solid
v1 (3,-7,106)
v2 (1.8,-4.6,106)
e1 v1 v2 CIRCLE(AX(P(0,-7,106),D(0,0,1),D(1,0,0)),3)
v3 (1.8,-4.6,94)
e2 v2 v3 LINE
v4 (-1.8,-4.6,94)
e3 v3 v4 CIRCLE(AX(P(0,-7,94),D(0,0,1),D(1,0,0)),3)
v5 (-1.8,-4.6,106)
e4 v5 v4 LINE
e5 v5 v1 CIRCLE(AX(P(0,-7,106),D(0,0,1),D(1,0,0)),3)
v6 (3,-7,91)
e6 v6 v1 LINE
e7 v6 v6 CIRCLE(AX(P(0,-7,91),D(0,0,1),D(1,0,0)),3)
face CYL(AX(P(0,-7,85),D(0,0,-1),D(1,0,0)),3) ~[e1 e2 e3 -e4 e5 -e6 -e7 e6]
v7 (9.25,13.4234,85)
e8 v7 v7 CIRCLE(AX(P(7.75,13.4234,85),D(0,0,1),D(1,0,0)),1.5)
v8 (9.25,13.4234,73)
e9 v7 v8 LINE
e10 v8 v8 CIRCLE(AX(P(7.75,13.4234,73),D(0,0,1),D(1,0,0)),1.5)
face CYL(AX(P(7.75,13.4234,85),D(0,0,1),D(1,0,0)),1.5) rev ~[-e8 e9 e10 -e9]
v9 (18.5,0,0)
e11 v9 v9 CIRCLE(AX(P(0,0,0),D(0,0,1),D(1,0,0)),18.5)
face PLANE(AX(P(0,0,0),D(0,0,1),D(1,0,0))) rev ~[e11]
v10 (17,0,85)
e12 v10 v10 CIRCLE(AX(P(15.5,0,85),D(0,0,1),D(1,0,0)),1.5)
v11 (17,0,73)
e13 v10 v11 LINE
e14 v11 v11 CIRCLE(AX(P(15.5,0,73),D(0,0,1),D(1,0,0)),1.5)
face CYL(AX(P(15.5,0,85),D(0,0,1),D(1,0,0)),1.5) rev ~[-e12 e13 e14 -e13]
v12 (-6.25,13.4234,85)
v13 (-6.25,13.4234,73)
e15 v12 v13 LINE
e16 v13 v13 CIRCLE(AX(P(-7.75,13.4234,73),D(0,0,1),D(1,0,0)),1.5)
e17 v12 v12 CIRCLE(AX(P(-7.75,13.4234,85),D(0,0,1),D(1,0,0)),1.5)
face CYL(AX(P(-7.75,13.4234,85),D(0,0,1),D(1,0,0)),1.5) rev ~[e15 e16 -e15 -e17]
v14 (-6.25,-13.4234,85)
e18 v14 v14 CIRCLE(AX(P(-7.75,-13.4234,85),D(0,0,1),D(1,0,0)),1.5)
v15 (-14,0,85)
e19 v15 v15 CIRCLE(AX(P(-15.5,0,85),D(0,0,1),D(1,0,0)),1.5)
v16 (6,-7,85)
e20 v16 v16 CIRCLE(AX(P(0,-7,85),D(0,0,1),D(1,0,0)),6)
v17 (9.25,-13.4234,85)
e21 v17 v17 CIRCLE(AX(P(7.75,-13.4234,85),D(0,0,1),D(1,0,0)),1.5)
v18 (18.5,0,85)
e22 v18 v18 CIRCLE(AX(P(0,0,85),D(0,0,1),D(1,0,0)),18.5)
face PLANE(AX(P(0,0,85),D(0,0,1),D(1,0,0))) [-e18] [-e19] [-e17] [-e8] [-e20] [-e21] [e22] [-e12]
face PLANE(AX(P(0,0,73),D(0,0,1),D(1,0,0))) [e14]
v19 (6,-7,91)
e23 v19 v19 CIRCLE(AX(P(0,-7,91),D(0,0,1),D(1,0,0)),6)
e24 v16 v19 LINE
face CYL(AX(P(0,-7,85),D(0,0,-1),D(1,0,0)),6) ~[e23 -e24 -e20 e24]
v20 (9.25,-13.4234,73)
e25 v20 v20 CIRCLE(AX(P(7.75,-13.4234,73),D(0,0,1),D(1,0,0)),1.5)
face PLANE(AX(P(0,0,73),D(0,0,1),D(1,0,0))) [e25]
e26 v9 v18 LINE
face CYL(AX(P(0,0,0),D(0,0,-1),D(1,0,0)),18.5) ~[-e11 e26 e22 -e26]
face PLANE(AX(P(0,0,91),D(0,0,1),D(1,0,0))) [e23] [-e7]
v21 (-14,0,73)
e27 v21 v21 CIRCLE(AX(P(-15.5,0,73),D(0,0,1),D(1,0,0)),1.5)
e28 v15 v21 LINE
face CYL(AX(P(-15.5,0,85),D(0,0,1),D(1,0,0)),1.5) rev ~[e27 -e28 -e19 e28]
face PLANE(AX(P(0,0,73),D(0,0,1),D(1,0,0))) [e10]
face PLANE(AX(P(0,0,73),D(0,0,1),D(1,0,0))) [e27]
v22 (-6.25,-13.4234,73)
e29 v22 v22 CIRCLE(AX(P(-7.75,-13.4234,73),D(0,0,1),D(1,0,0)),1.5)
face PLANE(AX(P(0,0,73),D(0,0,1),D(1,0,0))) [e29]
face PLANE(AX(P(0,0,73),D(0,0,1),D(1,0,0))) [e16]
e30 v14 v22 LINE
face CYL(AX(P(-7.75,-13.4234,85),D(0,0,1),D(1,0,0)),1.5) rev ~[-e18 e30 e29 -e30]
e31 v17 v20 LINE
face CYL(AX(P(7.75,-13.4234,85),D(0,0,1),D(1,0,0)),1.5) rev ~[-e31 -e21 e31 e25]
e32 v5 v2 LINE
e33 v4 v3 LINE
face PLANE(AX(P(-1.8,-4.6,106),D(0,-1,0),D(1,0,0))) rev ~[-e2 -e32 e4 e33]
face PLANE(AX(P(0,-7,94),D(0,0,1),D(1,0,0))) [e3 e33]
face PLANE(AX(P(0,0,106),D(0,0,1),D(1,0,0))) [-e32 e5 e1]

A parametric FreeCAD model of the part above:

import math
import FreeCAD as App
import Part
import Sketcher
from FreeCAD import Vector

doc = App.newDocument("Part")
params = doc.addObject("Spreadsheet::Sheet", "Params")
for row, (alias, value) in enumerate([
    ("sketch1_diameter", "37 mm"),
    ("pad1_length", "85 mm"),
    ("sketch2_diameter", "6 mm"),
    ("pad2_length", "21 mm"),
    ("sketch3_diameter", "12 mm"),
    ("sketch3_diameter2", "6 mm"),
    ("pad3_length", "6 mm"),
    ("sketch4_radius", "3 mm"),
    ("pocket1_length", "12 mm"),
    ("sketch5_diameter", "3 mm"),
    ("pocket2_length", "12 mm"),
], start=1):
    params.set(f"A{row}", alias)
    params.set(f"B{row}", "=" + value)
    params.setAlias(f"B{row}", alias)

body = doc.addObject("PartDesign::Body", "Body")

# Sketch on XY plane
sketch1 = doc.addObject("Sketcher::SketchObject", "Sketch")
body.addObject(sketch1)
sketch1.AttachmentSupport = (doc.XY_Plane, [""])
sketch1.MapMode = "FlatFace"
sketch1.addGeometry(Part.Circle(Vector(0, 0, 0), Vector(0, 0, 1), 18), False)
sketch1.addConstraint(Sketcher.Constraint("Coincident", 0, 3, -1, 1))
sketch1.addConstraint(Sketcher.Constraint("Diameter", 0, 37.0))
sketch1.setExpression("Constraints[1]", "Params.sketch1_diameter")
pad1 = doc.addObject("PartDesign::Pad", "Pad")
body.addObject(pad1)
pad1.Profile = sketch1
pad1.setExpression("Length", "Params.pad1_length")

# Sketch on XY plane
sketch2 = doc.addObject("Sketcher::SketchObject", "Sketch001")
body.addObject(sketch2)
sketch2.AttachmentSupport = (doc.XY_Plane, [""])
sketch2.MapMode = "FlatFace"
sketch2.AttachmentOffset = App.Placement(Vector(0, 0, 85), App.Rotation())
sketch2.addGeometry(Part.Circle(Vector(0, -7, 0), Vector(0, 0, 1), 3), False)
sketch2.addConstraint(Sketcher.Constraint("PointOnObject", 0, 3, -2))
sketch2.addConstraint(Sketcher.Constraint("Diameter", 0, 6.0))
sketch2.addConstraint(Sketcher.Constraint("DistanceY", 0, 3, -1, 1, 7.0))
sketch2.setExpression("Constraints[1]", "Params.sketch2_diameter")
pad2 = doc.addObject("PartDesign::Pad", "Pad001")
body.addObject(pad2)
pad2.Profile = sketch2
pad2.setExpression("Length", "Params.pad2_length")

# Sketch on XY plane
sketch3 = doc.addObject("Sketcher::SketchObject", "Sketch002")
body.addObject(sketch3)
sketch3.AttachmentSupport = (doc.XY_Plane, [""])
sketch3.MapMode = "FlatFace"
sketch3.AttachmentOffset = App.Placement(Vector(0, 0, 85), App.Rotation())
sketch3.addGeometry(Part.Circle(Vector(0, -7, 0), Vector(0, 0, 1), 6), False)
sketch3.addGeometry(Part.Circle(Vector(0, -7, 0), Vector(0, 0, 1), 3), False)
sketch3.addConstraint(Sketcher.Constraint("Coincident", 1, 3, 0, 3))
sketch3.addConstraint(Sketcher.Constraint("PointOnObject", 0, 3, -2))
sketch3.addConstraint(Sketcher.Constraint("Diameter", 0, 12.0))
sketch3.addConstraint(Sketcher.Constraint("Diameter", 1, 6.0))
sketch3.addConstraint(Sketcher.Constraint("DistanceY", 0, 3, -1, 1, 7.0))
sketch3.setExpression("Constraints[2]", "Params.sketch3_diameter")
sketch3.setExpression("Constraints[3]", "Params.sketch3_diameter2")
pad3 = doc.addObject("PartDesign::Pad", "Pad002")
body.addObject(pad3)
pad3.Profile = sketch3
pad3.setExpression("Length", "Params.pad3_length")

# Sketch on XY plane
sketch4 = doc.addObject("Sketcher::SketchObject", "Sketch003")
body.addObject(sketch4)
sketch4.AttachmentSupport = (doc.XY_Plane, [""])
sketch4.MapMode = "FlatFace"
sketch4.AttachmentOffset = App.Placement(Vector(0, 0, 106), App.Rotation())
sketch4.addGeometry(Part.LineSegment(Vector(-1.8, -4.6, 0), Vector(1.8, -4.6, 0)), False)
sketch4.addGeometry(Part.ArcOfCircle(Part.Circle(Vector(0, -7, 0), Vector(0, 0, 1), 3), math.radians(53), math.radians(127)), False)
sketch4.addConstraint(Sketcher.Constraint("Coincident", 0, 1, 1, 2))
sketch4.addConstraint(Sketcher.Constraint("Coincident", 1, 1, 0, 2))
sketch4.addConstraint(Sketcher.Constraint("Horizontal", 0))
sketch4.addConstraint(Sketcher.Constraint("PointOnObject", 1, 3, -2))
sketch4.addConstraint(Sketcher.Constraint("Radius", 1, 3.0))
sketch4.addConstraint(Sketcher.Constraint("DistanceY", 1, 3, 0, 1, 2.4))
sketch4.addConstraint(Sketcher.Constraint("DistanceY", 1, 3, -1, 1, 7.0))
sketch4.setExpression("Constraints[4]", "Params.sketch4_radius")
pocket1 = doc.addObject("PartDesign::Pocket", "Pocket")
body.addObject(pocket1)
pocket1.Profile = sketch4
pocket1.setExpression("Length", "Params.pocket1_length")

# Sketch on XY plane
sketch5 = doc.addObject("Sketcher::SketchObject", "Sketch004")
body.addObject(sketch5)
sketch5.AttachmentSupport = (doc.XY_Plane, [""])
sketch5.MapMode = "FlatFace"
sketch5.AttachmentOffset = App.Placement(Vector(0, 0, 85), App.Rotation())
sketch5.addGeometry(Part.Circle(Vector(15.5, 0, 0), Vector(0, 0, 1), 1.5), False)
sketch5.addGeometry(Part.Circle(Vector(7.8, 13.4, 0), Vector(0, 0, 1), 1.5), False)
sketch5.addGeometry(Part.Circle(Vector(-7.8, 13.4, 0), Vector(0, 0, 1), 1.5), False)
sketch5.addGeometry(Part.Circle(Vector(-15.5, 0, 0), Vector(0, 0, 1), 1.5), False)
sketch5.addGeometry(Part.Circle(Vector(-7.8, -13.4, 0), Vector(0, 0, 1), 1.5), False)
sketch5.addGeometry(Part.Circle(Vector(7.8, -13.4, 0), Vector(0, 0, 1), 1.5), False)
sketch5.addConstraint(Sketcher.Constraint("Equal", 0, 1))
sketch5.addConstraint(Sketcher.Constraint("Equal", 1, 2))
sketch5.addConstraint(Sketcher.Constraint("Equal", 2, 3))
sketch5.addConstraint(Sketcher.Constraint("Equal", 3, 4))
sketch5.addConstraint(Sketcher.Constraint("Equal", 4, 5))
sketch5.addConstraint(Sketcher.Constraint("Symmetric", 0, 3, 3, 3, -1, 1))
sketch5.addConstraint(Sketcher.Constraint("Symmetric", 1, 3, 4, 3, -1, 1))
sketch5.addConstraint(Sketcher.Constraint("Symmetric", 2, 3, 5, 3, -1, 1))
sketch5.addConstraint(Sketcher.Constraint("Symmetric", 1, 3, 2, 3, -2))
sketch5.addConstraint(Sketcher.Constraint("PointOnObject", 0, 3, -1))
sketch5.addConstraint(Sketcher.Constraint("Diameter", 0, 3.0))
sketch5.addConstraint(Sketcher.Constraint("DistanceX", -1, 1, 0, 3, 15.5))
sketch5.addConstraint(Sketcher.Constraint("DistanceX", 2, 3, 1, 3, 15.5))
sketch5.addConstraint(Sketcher.Constraint("DistanceY", -1, 1, 1, 3, 13.4234))
sketch5.setExpression("Constraints[10]", "Params.sketch5_diameter")
pocket2 = doc.addObject("PartDesign::Pocket", "Pocket001")
body.addObject(pocket2)
pocket2.Profile = sketch5
pocket2.setExpression("Length", "Params.pocket2_length")

doc.recompute()
